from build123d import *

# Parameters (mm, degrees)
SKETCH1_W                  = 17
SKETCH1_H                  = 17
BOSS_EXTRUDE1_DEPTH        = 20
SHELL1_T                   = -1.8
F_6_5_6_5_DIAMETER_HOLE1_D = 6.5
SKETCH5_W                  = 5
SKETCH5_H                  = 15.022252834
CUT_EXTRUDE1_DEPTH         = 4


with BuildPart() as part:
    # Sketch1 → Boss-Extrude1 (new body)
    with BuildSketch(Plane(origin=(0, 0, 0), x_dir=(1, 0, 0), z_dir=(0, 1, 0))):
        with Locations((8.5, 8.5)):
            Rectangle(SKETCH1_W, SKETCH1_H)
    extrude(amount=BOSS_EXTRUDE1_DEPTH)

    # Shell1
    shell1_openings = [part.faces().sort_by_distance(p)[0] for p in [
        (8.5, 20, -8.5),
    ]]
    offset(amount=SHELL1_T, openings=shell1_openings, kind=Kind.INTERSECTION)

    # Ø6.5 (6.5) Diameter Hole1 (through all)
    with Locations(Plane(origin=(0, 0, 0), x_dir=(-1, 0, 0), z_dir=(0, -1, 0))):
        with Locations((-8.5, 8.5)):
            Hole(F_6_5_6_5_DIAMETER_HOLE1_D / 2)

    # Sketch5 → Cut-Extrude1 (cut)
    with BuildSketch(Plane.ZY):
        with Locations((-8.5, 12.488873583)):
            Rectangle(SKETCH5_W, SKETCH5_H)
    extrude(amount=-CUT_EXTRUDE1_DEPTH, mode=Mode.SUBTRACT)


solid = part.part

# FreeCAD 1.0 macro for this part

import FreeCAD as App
import Part
import Sketcher

V = App.Vector


def faces_at(feature, points):
    """Names of the faces that lie closest to the given points."""
    faces = feature.Shape.Faces
    near = lambda p: min(range(len(faces)), key=lambda i: faces[i].distToShape(Part.Vertex(*p))[0])
    return sorted({f"Face{near(p) + 1}" for p in points})

doc = App.newDocument("Part")
body = doc.addObject("PartDesign::Body", "Body")

sketch1 = doc.addObject("Sketcher::SketchObject", "Sketch")
body.addObject(sketch1)
sketch1.AttachmentSupport = (doc.XZ_Plane, [""])
sketch1.MapMode = "FlatFace"
sketch1.addGeometry(Part.LineSegment(V(0, -17, 0), V(0, 0, 0)), False)
sketch1.addGeometry(Part.LineSegment(V(0, 0, 0), V(17, 0, 0)), False)
sketch1.addGeometry(Part.LineSegment(V(17, 0, 0), V(17, -17, 0)), False)
sketch1.addGeometry(Part.LineSegment(V(17, -17, 0), V(0, -17, 0)), False)
sketch1.addConstraint(Sketcher.Constraint("Coincident", 0, 2, 1, 1))
sketch1.addConstraint(Sketcher.Constraint("Coincident", 1, 2, 2, 1))
sketch1.addConstraint(Sketcher.Constraint("Coincident", 2, 2, 3, 1))
sketch1.addConstraint(Sketcher.Constraint("Coincident", 3, 2, 0, 1))
sketch1.addConstraint(Sketcher.Constraint("Vertical", 0))
sketch1.addConstraint(Sketcher.Constraint("Horizontal", 1))
sketch1.addConstraint(Sketcher.Constraint("Vertical", 2))
sketch1.addConstraint(Sketcher.Constraint("Horizontal", 3))
sketch1.addConstraint(Sketcher.Constraint("Coincident", 0, 2, -1, 1))
sketch1.addConstraint(Sketcher.Constraint("Equal", 3, 0))
sketch1.addConstraint(Sketcher.Constraint("DistanceX", 1, 1, 1, 2, 17.0))
pad1 = doc.addObject("PartDesign::Pad", "Pad")
body.addObject(pad1)
pad1.Profile = sketch1
pad1.Length = 20
pad1.Reversed = True
doc.recompute()

thickness = doc.addObject("PartDesign::Thickness", "Thickness")
body.addObject(thickness)
thickness.Base = (pad1, faces_at(pad1, [(8.5, 20, -8.5)]))
thickness.Value = 1.8
thickness.Reversed = True
thickness.Join = "Intersection"

sketch2 = doc.addObject("Sketcher::SketchObject", "Sketch001")
body.addObject(sketch2)
sketch2.AttachmentSupport = (doc.XZ_Plane, [""])
sketch2.MapMode = "FlatFace"
sketch2.addGeometry(Part.Circle(V(8.5, -8.5, 0), V(0, 0, 1), 3.25), False)
sketch2.addConstraint(Sketcher.Constraint("Diameter", 0, 6.5))
sketch2.addConstraint(Sketcher.Constraint("DistanceX", -1, 1, 0, 3, 8.5))
sketch2.addConstraint(Sketcher.Constraint("DistanceY", 0, 3, -1, 1, 8.5))
doc.recompute()
hole = doc.addObject("PartDesign::Hole", "Hole")
body.addObject(hole)
hole.Profile = sketch2
hole.ThreadType = "None"
hole.Diameter = 6.5
hole.DepthType = "ThroughAll"

sketch3 = doc.addObject("Sketcher::SketchObject", "Sketch002")
body.addObject(sketch3)
sketch3.AttachmentSupport = (doc.YZ_Plane, [""])
sketch3.MapMode = "FlatFace"
sketch3.addGeometry(Part.LineSegment(V(20, -11, 0), V(4.977747, -11, 0)), False)
sketch3.addGeometry(Part.LineSegment(V(4.977747, -11, 0), V(4.977747, -6, 0)), False)
sketch3.addGeometry(Part.LineSegment(V(4.977747, -6, 0), V(20, -6, 0)), False)
sketch3.addGeometry(Part.LineSegment(V(20, -6, 0), V(20, -11, 0)), False)
sketch3.addConstraint(Sketcher.Constraint("Coincident", 0, 2, 1, 1))
sketch3.addConstraint(Sketcher.Constraint("Coincident", 1, 2, 2, 1))
sketch3.addConstraint(Sketcher.Constraint("Coincident", 2, 2, 3, 1))
sketch3.addConstraint(Sketcher.Constraint("Coincident", 3, 2, 0, 1))
sketch3.addConstraint(Sketcher.Constraint("Horizontal", 0))
sketch3.addConstraint(Sketcher.Constraint("Vertical", 1))
sketch3.addConstraint(Sketcher.Constraint("Horizontal", 2))
sketch3.addConstraint(Sketcher.Constraint("Vertical", 3))
sketch3.addConstraint(Sketcher.Constraint("DistanceY", 1, 1, 1, 2, 5.0))
sketch3.addConstraint(Sketcher.Constraint("DistanceY", 0, 2, -1, 1, 11.0))
sketch3.addConstraint(Sketcher.Constraint("DistanceX", -1, 1, 2, 2, 20.0))
sketch3.addConstraint(Sketcher.Constraint("DistanceX", 0, 2, 0, 1, 15.022253))
pocket1 = doc.addObject("PartDesign::Pocket", "Pocket")
body.addObject(pocket1)
pocket1.Profile = sketch3
pocket1.Length = 4
pocket1.Reversed = True

doc.recompute()
